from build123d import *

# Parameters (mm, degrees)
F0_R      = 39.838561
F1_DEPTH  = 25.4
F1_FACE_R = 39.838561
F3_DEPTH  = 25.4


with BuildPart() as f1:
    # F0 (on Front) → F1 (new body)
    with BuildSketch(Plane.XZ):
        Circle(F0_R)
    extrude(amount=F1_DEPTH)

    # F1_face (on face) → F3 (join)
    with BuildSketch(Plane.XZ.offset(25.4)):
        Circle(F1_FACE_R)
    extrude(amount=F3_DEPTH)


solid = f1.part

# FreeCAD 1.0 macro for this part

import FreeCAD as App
import Part
import Sketcher
from FreeCAD import Vector
Q = App.Units.Quantity

doc = App.newDocument("Part")
params = doc.addObject("Spreadsheet::Sheet", "Params")
for row, (alias, value) in enumerate([
    ("pad1_length", "1 in"),
    ("pad2_length", "1 in"),
], start=1):
    params.set(f"A{row}", alias)
    params.set(f"B{row}", "=" + value)
    params.setAlias(f"B{row}", alias)

body = doc.addObject("PartDesign::Body", "Body")

# Sketch on XZ plane
sketch1 = body.newObject("Sketcher::SketchObject", "Sketch")
sketch1.AttachmentSupport = (doc.getObject("XZ_Plane"), [""])
sketch1.MapMode = "FlatFace"
sketch1.addGeometry(Part.Circle(Vector(0, 0, 0), Vector(0, 0, 1), 40), False)
sketch1.addConstraint(Sketcher.Constraint("Coincident", 0, 3, -1, 1))
sketch1.addConstraint(Sketcher.Constraint("Diameter", 0, Q("79.677122 mm")))
pad1 = body.newObject("PartDesign::Pad", "Pad")
pad1.Profile = sketch1
pad1.setExpression("Length", "Params.pad1_length")

# Sketch on XZ plane
sketch2 = body.newObject("Sketcher::SketchObject", "Sketch001")
sketch2.AttachmentSupport = (doc.getObject("XZ_Plane"), [""])
sketch2.MapMode = "FlatFace"
sketch2.AttachmentOffset = App.Placement(Vector(0, 0, 1 * 25.4), App.Rotation())
sketch2.addGeometry(Part.Circle(Vector(0, 0, 0), Vector(0, 0, 1), 40), False)
sketch2.addConstraint(Sketcher.Constraint("Coincident", 0, 3, -1, 1))
sketch2.addConstraint(Sketcher.Constraint("Diameter", 0, Q("79.677122 mm")))
pad2 = body.newObject("PartDesign::Pad", "Pad001")
pad2.Profile = sketch2
pad2.setExpression("Length", "Params.pad2_length")

doc.recompute()
